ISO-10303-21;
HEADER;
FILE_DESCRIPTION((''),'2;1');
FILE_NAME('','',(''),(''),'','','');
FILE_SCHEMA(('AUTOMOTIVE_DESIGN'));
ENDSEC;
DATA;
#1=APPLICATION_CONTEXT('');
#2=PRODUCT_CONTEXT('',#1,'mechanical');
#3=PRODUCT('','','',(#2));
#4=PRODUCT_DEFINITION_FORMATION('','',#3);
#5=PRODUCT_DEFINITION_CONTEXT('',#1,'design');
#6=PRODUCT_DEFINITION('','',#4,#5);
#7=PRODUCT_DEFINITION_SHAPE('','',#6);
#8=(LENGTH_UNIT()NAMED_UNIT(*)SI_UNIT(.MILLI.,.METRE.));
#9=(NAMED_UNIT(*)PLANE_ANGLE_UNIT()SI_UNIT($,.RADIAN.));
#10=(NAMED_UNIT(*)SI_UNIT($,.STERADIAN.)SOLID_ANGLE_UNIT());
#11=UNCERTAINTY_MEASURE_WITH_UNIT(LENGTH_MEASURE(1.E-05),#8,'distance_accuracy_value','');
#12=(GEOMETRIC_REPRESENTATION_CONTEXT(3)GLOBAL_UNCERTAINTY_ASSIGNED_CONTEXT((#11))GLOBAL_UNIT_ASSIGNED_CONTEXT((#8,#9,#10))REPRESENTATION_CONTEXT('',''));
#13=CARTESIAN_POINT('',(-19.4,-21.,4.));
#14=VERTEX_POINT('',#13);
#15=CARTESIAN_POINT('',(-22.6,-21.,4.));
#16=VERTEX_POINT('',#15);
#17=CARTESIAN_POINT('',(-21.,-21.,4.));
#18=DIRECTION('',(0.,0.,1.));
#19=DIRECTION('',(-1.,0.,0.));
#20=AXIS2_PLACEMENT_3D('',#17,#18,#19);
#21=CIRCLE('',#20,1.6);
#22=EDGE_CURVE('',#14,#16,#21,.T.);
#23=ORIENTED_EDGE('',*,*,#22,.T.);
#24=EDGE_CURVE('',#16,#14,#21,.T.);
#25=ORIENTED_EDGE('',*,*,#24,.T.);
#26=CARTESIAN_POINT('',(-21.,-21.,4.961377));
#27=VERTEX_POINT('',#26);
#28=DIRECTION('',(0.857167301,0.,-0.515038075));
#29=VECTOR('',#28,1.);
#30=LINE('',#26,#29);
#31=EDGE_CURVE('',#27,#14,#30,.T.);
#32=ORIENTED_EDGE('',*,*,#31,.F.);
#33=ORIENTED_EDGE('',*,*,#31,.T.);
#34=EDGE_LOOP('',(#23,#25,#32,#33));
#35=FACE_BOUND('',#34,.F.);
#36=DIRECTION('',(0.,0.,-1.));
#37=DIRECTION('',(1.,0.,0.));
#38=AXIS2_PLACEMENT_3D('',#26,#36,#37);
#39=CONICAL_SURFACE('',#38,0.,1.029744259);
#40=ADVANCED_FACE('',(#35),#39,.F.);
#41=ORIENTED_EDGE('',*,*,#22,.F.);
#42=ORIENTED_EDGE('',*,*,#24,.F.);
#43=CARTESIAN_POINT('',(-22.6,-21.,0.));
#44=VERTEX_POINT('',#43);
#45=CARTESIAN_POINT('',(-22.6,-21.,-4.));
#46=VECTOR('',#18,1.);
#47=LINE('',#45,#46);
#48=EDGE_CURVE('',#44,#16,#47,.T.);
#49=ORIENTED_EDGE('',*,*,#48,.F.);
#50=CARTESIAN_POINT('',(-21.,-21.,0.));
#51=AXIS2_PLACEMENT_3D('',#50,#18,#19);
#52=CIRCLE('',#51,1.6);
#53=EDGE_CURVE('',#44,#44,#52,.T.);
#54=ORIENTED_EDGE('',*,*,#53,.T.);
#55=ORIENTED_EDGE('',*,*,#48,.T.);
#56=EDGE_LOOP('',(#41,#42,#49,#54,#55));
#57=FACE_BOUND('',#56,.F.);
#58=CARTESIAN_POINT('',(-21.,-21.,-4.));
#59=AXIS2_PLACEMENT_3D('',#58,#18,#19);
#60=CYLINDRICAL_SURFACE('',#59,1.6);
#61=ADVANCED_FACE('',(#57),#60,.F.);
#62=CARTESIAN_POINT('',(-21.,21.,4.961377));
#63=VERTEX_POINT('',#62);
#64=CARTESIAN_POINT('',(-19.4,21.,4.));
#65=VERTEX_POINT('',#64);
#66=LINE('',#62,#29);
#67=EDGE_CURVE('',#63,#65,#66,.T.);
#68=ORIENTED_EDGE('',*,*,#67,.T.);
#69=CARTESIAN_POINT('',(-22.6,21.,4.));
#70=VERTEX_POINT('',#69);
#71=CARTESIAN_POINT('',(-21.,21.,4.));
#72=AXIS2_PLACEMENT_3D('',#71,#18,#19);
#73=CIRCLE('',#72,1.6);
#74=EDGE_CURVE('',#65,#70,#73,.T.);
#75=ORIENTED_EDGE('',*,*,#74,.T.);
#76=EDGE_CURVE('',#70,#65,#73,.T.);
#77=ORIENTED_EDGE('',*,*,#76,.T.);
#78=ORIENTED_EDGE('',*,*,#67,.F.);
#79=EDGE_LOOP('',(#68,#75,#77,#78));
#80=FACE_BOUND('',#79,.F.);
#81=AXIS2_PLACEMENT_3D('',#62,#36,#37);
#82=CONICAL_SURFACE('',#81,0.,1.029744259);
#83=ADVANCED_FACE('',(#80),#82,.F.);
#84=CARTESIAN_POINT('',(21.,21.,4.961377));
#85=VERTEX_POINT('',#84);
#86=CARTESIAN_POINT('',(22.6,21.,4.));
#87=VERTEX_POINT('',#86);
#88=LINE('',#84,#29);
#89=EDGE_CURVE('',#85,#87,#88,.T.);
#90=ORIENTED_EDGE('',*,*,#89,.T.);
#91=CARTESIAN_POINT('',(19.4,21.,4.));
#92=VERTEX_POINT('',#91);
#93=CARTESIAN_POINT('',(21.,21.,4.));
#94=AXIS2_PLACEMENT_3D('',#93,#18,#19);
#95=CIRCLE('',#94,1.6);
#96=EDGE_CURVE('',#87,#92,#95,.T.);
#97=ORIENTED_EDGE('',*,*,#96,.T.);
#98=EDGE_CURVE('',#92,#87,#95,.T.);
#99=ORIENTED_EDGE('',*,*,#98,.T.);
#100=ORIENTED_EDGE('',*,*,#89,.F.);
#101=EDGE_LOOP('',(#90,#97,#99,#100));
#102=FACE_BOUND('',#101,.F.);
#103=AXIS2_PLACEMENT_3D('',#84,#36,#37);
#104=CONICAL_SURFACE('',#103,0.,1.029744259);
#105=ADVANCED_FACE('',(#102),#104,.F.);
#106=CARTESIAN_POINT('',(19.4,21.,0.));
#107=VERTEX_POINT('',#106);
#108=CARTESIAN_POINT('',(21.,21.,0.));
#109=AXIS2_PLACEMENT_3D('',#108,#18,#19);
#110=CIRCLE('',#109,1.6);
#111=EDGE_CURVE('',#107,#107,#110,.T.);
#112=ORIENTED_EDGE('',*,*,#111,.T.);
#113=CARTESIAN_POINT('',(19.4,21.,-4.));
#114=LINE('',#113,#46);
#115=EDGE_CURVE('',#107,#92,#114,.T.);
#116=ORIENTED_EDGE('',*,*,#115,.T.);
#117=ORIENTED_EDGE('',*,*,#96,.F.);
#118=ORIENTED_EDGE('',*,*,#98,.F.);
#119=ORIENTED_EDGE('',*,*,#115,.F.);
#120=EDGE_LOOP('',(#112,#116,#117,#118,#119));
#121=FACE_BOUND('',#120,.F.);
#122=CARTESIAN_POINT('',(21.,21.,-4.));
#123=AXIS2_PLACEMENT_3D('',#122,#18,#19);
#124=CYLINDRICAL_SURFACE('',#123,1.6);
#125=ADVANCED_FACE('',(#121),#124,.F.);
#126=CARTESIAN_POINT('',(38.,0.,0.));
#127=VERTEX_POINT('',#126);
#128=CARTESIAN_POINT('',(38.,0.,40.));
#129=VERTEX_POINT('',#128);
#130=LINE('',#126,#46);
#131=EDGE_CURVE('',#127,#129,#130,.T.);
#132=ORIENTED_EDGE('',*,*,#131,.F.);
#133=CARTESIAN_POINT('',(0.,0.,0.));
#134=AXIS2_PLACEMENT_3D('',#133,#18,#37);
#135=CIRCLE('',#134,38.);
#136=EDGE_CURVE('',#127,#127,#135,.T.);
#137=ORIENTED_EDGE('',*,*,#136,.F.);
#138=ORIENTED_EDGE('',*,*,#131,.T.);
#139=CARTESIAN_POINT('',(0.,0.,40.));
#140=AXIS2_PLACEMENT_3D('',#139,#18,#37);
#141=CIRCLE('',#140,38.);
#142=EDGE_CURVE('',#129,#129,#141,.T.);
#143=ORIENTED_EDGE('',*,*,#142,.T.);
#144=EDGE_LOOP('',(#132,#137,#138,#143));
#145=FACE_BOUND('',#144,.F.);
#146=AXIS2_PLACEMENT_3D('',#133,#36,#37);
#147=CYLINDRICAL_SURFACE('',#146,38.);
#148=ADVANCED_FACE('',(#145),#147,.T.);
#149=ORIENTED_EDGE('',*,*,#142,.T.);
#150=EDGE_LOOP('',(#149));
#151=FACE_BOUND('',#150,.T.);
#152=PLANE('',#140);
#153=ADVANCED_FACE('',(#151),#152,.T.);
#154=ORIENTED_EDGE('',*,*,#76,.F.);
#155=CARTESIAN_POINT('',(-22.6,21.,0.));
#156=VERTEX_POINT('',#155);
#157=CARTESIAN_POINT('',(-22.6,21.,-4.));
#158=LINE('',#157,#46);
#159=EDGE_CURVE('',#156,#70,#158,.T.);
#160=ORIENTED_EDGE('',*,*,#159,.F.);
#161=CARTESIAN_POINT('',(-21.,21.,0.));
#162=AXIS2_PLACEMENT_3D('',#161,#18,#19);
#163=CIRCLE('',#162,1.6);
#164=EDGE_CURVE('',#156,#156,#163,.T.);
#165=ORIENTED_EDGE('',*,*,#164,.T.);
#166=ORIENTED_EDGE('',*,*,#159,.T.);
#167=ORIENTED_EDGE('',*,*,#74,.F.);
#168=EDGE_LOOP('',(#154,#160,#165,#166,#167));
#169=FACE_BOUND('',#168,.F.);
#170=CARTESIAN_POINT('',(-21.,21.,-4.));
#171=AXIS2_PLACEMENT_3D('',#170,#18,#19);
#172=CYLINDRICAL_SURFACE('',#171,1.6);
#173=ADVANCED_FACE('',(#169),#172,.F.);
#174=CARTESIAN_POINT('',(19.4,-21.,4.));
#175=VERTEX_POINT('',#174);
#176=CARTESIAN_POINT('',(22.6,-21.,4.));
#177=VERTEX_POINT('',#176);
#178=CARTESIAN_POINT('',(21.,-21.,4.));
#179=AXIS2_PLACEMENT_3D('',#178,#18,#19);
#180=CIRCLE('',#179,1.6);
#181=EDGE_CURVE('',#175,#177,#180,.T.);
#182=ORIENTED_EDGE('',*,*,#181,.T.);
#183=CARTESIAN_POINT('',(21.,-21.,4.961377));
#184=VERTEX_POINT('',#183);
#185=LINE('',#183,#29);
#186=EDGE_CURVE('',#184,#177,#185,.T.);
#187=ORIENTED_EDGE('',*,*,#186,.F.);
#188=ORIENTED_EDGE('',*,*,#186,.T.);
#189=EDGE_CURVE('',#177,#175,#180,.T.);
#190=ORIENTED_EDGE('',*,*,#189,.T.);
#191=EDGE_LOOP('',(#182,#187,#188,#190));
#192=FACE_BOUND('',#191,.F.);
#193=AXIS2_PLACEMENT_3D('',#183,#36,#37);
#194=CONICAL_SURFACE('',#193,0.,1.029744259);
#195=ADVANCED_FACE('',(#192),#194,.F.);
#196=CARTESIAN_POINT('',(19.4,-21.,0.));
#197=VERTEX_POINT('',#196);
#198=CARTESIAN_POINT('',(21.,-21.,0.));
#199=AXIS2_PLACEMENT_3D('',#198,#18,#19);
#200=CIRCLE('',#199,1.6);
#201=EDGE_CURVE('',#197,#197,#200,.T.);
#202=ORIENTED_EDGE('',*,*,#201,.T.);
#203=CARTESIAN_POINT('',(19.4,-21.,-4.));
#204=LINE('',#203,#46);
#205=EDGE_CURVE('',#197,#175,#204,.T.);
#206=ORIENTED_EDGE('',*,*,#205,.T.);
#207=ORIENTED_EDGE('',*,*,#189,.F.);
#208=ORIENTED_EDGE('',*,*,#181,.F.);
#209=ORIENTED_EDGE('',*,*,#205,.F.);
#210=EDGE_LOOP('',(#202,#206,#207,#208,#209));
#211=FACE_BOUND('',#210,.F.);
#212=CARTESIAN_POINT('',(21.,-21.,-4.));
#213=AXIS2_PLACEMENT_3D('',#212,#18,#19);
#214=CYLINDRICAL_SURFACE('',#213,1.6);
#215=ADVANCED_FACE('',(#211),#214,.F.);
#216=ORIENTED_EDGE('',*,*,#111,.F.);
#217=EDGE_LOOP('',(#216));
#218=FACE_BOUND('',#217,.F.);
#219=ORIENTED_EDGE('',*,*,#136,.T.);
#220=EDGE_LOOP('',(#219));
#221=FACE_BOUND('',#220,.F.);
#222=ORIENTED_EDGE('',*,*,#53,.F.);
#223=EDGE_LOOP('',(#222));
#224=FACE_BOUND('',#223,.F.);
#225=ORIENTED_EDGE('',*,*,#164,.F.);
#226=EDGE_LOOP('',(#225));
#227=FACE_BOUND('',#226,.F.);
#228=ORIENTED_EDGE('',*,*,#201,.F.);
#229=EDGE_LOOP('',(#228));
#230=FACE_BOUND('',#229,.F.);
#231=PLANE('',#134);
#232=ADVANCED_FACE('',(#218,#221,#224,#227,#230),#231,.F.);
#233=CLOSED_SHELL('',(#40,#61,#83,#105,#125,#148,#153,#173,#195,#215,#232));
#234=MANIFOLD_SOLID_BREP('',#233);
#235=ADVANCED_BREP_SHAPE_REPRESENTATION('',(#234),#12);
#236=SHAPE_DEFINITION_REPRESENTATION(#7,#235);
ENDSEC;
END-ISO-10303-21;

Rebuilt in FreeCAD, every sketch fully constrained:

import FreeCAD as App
import Part
import Sketcher
from FreeCAD import Vector
Q = App.Units.Quantity

doc = App.newDocument("Part")
body = doc.addObject("PartDesign::Body", "Body")

sketch1 = doc.addObject("Sketcher::SketchObject", "Sketch")
body.addObject(sketch1)
sketch1.AttachmentSupport = (doc.XY_Plane, [""])
sketch1.MapMode = "FlatFace"
sketch1.addGeometry(Part.Circle(Vector(0, 0, 0), Vector(0, 0, 1), 38), False)
sketch1.addConstraint(Sketcher.Constraint("Coincident", 0, 3, -1, 1))
sketch1.addConstraint(Sketcher.Constraint("Diameter", 0, Q("76 mm")))
pad1 = doc.addObject("PartDesign::Pad", "Pad")
body.addObject(pad1)
pad1.Profile = sketch1
pad1.Length = 40

sketch2 = doc.addObject("Sketcher::SketchObject", "Sketch001")
body.addObject(sketch2)
sketch2.AttachmentSupport = (doc.XY_Plane, [""])
sketch2.MapMode = "FlatFace"
sketch2.addGeometry(Part.Circle(Vector(-21, -21, 0), Vector(0, 0, 1), 1.6), False)
sketch2.addGeometry(Part.Circle(Vector(21, -21, 0), Vector(0, 0, 1), 1.6), False)
sketch2.addGeometry(Part.Circle(Vector(21, 21, 0), Vector(0, 0, 1), 1.6), False)
sketch2.addGeometry(Part.Circle(Vector(-21, 21, 0), Vector(0, 0, 1), 1.6), False)
sketch2.addConstraint(Sketcher.Constraint("Equal", 0, 1))
sketch2.addConstraint(Sketcher.Constraint("Equal", 1, 2))
sketch2.addConstraint(Sketcher.Constraint("Equal", 2, 3))
sketch2.addConstraint(Sketcher.Constraint("Symmetric", 0, 3, 2, 3, -1, 1))
sketch2.addConstraint(Sketcher.Constraint("Symmetric", 1, 3, 3, 3, -1, 1))
sketch2.addConstraint(Sketcher.Constraint("Symmetric", 0, 3, 1, 3, -2))
sketch2.addConstraint(Sketcher.Constraint("Diameter", 0, Q("3.2 mm")))
sketch2.addConstraint(Sketcher.Constraint("DistanceX", 0, 3, -1, 1, Q("21 mm")))
sketch2.addConstraint(Sketcher.Constraint("DistanceY", 0, 3, -1, 1, Q("21 mm")))
doc.recompute()
hole = doc.addObject("PartDesign::Hole", "Hole")
body.addObject(hole)
hole.Profile = sketch2
hole.ThreadType = "None"
hole.Diameter = 3.2
hole.DepthType = "Dimension"
hole.Depth = 4
hole.DrillPoint = "Angled"
hole.DrillPointAngle = 118
hole.Reversed = True

doc.recompute()
